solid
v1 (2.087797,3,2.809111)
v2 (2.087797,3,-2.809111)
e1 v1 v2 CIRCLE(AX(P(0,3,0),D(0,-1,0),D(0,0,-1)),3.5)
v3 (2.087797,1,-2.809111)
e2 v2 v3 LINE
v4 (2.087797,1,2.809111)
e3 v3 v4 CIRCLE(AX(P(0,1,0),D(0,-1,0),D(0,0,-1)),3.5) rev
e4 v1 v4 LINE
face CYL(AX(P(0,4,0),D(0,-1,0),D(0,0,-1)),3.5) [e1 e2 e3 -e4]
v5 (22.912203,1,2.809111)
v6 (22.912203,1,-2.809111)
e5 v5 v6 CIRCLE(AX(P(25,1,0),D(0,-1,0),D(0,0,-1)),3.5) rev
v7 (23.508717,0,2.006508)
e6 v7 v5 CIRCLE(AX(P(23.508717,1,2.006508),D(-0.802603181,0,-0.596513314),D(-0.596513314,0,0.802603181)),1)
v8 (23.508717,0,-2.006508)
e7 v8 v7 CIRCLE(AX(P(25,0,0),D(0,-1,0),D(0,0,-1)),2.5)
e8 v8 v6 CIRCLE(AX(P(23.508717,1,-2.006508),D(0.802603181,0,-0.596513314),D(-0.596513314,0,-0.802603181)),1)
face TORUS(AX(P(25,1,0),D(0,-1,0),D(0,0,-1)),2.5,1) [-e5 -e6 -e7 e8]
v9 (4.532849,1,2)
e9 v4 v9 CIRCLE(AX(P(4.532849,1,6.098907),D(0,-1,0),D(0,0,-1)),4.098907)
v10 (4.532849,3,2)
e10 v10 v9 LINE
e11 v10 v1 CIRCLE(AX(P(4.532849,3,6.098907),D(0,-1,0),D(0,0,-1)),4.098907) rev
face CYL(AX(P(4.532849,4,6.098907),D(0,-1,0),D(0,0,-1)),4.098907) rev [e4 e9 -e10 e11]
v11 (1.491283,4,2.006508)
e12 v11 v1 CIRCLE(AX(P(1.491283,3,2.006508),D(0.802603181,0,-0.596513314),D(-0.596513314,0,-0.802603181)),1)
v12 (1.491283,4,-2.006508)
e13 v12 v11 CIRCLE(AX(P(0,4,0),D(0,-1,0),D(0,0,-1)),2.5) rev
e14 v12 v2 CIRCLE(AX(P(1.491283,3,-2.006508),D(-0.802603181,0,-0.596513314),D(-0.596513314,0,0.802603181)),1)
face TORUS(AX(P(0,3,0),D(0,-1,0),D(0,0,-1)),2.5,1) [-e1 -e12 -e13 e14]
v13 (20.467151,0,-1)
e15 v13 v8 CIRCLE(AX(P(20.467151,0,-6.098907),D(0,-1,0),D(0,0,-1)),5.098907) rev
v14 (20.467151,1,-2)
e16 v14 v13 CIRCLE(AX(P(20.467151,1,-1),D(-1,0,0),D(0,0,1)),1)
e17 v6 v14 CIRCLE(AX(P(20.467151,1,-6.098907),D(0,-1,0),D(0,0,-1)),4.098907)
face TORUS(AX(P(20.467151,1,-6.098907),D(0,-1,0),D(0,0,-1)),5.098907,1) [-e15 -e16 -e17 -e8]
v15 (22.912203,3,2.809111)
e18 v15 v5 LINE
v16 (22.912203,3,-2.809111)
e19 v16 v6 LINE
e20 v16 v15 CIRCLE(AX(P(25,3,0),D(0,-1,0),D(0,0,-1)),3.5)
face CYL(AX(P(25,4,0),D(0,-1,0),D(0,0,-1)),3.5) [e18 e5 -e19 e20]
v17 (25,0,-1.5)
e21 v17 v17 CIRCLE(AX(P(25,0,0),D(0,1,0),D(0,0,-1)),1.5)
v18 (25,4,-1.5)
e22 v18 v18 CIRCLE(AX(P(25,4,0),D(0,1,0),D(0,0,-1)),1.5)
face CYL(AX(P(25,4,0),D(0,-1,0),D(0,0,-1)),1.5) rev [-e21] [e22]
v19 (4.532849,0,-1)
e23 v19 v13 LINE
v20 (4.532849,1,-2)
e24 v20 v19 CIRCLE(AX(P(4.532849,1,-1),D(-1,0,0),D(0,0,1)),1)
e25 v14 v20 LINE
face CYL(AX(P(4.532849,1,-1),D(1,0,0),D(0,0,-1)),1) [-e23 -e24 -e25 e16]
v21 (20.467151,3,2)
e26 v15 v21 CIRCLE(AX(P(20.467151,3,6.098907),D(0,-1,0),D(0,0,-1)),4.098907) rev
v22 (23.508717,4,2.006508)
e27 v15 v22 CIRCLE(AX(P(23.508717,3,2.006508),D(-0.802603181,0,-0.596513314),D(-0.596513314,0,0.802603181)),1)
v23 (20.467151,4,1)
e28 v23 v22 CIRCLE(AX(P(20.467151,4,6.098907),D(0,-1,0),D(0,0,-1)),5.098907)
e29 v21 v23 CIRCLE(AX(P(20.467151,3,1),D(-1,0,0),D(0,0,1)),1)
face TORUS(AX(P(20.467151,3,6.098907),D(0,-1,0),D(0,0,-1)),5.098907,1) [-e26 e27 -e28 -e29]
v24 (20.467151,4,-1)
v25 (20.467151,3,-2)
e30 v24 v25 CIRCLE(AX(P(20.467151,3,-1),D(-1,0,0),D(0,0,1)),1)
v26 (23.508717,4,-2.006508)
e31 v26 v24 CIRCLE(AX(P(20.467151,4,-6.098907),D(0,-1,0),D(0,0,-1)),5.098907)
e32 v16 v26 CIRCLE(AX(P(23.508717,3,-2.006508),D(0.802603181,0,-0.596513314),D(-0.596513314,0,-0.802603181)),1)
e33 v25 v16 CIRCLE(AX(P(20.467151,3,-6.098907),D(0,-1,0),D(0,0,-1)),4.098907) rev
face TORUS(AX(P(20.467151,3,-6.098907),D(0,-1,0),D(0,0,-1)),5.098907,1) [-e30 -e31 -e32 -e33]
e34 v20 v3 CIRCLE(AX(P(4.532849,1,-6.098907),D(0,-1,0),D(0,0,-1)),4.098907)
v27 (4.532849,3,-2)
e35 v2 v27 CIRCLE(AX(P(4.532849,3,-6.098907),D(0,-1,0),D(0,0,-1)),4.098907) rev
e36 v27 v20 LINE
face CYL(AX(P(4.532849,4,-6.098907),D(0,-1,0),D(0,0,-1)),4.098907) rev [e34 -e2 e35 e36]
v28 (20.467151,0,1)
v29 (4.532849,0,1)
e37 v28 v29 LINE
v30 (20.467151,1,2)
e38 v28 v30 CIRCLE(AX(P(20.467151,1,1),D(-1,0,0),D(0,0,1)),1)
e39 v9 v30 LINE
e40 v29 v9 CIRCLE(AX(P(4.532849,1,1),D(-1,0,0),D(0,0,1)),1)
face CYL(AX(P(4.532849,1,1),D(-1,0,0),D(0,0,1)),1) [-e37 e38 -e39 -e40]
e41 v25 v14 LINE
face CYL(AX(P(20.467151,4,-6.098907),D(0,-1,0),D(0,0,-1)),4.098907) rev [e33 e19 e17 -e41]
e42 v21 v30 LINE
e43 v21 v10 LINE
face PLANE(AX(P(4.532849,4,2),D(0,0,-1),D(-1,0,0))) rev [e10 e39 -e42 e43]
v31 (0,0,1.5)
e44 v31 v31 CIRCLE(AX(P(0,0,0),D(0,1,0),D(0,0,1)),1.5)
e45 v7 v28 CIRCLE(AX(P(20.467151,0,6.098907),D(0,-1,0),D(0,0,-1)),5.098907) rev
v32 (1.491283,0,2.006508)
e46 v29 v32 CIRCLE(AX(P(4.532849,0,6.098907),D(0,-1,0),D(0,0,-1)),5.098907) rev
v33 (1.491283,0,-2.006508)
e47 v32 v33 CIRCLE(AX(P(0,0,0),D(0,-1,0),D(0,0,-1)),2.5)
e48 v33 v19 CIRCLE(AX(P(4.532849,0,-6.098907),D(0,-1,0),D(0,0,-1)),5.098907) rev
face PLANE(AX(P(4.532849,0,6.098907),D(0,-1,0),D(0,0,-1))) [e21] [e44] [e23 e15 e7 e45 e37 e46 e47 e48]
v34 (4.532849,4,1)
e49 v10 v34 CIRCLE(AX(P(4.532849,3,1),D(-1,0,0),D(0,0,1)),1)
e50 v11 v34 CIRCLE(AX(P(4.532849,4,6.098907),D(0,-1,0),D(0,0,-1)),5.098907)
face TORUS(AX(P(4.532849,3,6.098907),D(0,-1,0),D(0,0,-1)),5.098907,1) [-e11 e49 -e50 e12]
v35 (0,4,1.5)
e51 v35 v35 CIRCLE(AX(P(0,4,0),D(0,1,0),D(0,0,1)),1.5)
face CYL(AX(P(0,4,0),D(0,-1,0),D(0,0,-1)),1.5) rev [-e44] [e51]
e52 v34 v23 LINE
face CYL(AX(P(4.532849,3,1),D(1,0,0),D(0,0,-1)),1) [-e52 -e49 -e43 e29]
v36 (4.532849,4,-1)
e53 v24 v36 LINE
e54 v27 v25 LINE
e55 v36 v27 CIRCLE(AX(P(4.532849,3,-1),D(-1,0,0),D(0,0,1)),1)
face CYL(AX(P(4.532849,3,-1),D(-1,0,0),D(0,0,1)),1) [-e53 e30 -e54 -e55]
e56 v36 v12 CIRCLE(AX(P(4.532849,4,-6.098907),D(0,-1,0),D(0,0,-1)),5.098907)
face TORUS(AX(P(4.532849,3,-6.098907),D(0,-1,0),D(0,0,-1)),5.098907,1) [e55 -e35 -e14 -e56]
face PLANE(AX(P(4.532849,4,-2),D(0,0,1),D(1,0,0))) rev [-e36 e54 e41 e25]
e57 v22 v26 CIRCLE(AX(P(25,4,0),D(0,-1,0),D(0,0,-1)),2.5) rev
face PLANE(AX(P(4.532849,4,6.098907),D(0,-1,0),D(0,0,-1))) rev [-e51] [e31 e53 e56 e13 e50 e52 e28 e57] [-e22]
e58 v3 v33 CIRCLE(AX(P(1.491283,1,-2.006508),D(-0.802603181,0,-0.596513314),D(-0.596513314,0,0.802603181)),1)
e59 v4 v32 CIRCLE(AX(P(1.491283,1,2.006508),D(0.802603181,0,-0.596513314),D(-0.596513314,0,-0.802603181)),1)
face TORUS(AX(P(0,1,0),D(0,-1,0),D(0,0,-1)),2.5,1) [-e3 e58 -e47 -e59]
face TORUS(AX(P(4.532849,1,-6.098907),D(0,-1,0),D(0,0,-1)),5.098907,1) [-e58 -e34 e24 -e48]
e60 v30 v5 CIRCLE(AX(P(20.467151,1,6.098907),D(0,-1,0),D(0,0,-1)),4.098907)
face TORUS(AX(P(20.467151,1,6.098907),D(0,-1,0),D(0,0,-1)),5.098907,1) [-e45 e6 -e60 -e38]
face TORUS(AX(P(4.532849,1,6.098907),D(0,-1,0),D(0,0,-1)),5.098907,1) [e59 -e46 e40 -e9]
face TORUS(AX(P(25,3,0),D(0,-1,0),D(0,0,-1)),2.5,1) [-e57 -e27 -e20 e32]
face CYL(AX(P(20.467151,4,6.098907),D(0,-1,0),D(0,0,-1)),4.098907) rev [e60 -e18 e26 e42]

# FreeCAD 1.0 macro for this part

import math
import FreeCAD as App
import Part
import Sketcher
from FreeCAD import Vector
Q = App.Units.Quantity


def edges_at(feature, points):
    """Names of the edges that pass closest to the given points."""
    edges = feature.Shape.Edges
    near = lambda p: min(range(len(edges)), key=lambda i: edges[i].distToShape(Part.Vertex(*p))[0])
    return sorted({f"Edge{near(p) + 1}" for p in points})

doc = App.newDocument("Part")
body = doc.addObject("PartDesign::Body", "Body")

# Sketch on XZ plane
sketch1 = body.newObject("Sketcher::SketchObject", "Sketch")
sketch1.AttachmentSupport = (doc.getObject("XZ_Plane"), [""])
sketch1.MapMode = "FlatFace"
sketch1.addGeometry([
    Part.LineSegment(Vector(4.5, 2, 0), Vector(20.5, 2, 0)),  # 0
    Part.ArcOfCircle(Part.Circle(Vector(20.5, 6.1, 0), Vector(0, 0, 1), 4.1), math.radians(-90), math.radians(-53)),  # 1
    Part.ArcOfCircle(Part.Circle(Vector(25, 0, 0), Vector(0, 0, 1), 3.5), math.radians(-127), math.radians(127)),  # 2
    Part.ArcOfCircle(Part.Circle(Vector(20.5, -6.1, 0), Vector(0, 0, 1), 4.1), math.radians(53), math.radians(90)),  # 3
    Part.LineSegment(Vector(20.5, -2, 0), Vector(4.5, -2, 0)),  # 4
    Part.ArcOfCircle(Part.Circle(Vector(4.5, -6.1, 0), Vector(0, 0, 1), 4.1), math.radians(90), math.radians(127)),  # 5
    Part.ArcOfCircle(Part.Circle(Vector(0, 0, 0), Vector(0, 0, 1), 3.5), math.radians(53), math.radians(307)),  # 6
    Part.ArcOfCircle(Part.Circle(Vector(4.5, 6.1, 0), Vector(0, 0, 1), 4.1), math.radians(-127), math.radians(-90)),  # 7
    Part.Circle(Vector(0, 0, 0), Vector(0, 0, 1), 1.5),  # 8
    Part.Circle(Vector(25, 0, 0), Vector(0, 0, 1), 1.5),  # 9
], False)
sketch1.addConstraint([
    Sketcher.Constraint("Tangent", 0, 2, 1, 1),
    Sketcher.Constraint("Tangent", 1, 2, 2, 2),
    Sketcher.Constraint("Tangent", 2, 1, 3, 1),
    Sketcher.Constraint("Tangent", 3, 2, 4, 1),
    Sketcher.Constraint("Tangent", 4, 2, 5, 1),
    Sketcher.Constraint("Tangent", 5, 2, 6, 2),
    Sketcher.Constraint("Tangent", 6, 1, 7, 1),
    Sketcher.Constraint("Tangent", 7, 2, 0, 1),
    Sketcher.Constraint("Horizontal", 0),
    Sketcher.Constraint("Horizontal", 4),
    Sketcher.Constraint("Coincident", 6, 3, -1, 1),
    Sketcher.Constraint("Coincident", 8, 3, -1, 1),
    Sketcher.Constraint("Coincident", 9, 3, 2, 3),
    Sketcher.Constraint("Equal", 1, 3),
    Sketcher.Constraint("Equal", 3, 5),
    Sketcher.Constraint("Equal", 2, 6),
    Sketcher.Constraint("Equal", 5, 7),
    Sketcher.Constraint("Equal", 8, 9),
    Sketcher.Constraint("Symmetric", 1, 3, 3, 3, -1),
    Sketcher.Constraint("Diameter", 8, Q("3 mm")),
    Sketcher.Constraint("Radius", 2, Q("3.5 mm")),
    Sketcher.Constraint("DistanceX", -1, 1, 2, 3, Q("25 mm")),
    Sketcher.Constraint("DistanceY", -1, 1, 0, 2, Q("2 mm")),
    Sketcher.Constraint("Radius", 1, Q("4.098907 mm")),
])
pad1 = body.newObject("PartDesign::Pad", "Pad")
pad1.Profile = sketch1
pad1.Length = 4
pad1.Reversed = True
doc.recompute()

fillet = body.newObject("PartDesign::Fillet", "Fillet")
fillet.Base = (pad1, edges_at(pad1, [
    (21.755, 4, 2.208),
    (12.5, 0, 2),
    (3.245, 0, 2.208),
    (28.5, 4, 0),
    (21.755, 4, -2.208),
    (12.5, 4, -2),
    (3.245, 4, -2.208),
    (-3.5, 4, 0),
    (3.245, 4, 2.208),
    (12.5, 4, 2),
    (-3.5, 0, 0),
    (3.245, 0, -2.208),
    (12.5, 0, -2),
    (21.755, 0, -2.208),
    (28.5, 0, 0),
    (21.755, 0, 2.208),
]))
fillet.Radius = 1

doc.recompute()
